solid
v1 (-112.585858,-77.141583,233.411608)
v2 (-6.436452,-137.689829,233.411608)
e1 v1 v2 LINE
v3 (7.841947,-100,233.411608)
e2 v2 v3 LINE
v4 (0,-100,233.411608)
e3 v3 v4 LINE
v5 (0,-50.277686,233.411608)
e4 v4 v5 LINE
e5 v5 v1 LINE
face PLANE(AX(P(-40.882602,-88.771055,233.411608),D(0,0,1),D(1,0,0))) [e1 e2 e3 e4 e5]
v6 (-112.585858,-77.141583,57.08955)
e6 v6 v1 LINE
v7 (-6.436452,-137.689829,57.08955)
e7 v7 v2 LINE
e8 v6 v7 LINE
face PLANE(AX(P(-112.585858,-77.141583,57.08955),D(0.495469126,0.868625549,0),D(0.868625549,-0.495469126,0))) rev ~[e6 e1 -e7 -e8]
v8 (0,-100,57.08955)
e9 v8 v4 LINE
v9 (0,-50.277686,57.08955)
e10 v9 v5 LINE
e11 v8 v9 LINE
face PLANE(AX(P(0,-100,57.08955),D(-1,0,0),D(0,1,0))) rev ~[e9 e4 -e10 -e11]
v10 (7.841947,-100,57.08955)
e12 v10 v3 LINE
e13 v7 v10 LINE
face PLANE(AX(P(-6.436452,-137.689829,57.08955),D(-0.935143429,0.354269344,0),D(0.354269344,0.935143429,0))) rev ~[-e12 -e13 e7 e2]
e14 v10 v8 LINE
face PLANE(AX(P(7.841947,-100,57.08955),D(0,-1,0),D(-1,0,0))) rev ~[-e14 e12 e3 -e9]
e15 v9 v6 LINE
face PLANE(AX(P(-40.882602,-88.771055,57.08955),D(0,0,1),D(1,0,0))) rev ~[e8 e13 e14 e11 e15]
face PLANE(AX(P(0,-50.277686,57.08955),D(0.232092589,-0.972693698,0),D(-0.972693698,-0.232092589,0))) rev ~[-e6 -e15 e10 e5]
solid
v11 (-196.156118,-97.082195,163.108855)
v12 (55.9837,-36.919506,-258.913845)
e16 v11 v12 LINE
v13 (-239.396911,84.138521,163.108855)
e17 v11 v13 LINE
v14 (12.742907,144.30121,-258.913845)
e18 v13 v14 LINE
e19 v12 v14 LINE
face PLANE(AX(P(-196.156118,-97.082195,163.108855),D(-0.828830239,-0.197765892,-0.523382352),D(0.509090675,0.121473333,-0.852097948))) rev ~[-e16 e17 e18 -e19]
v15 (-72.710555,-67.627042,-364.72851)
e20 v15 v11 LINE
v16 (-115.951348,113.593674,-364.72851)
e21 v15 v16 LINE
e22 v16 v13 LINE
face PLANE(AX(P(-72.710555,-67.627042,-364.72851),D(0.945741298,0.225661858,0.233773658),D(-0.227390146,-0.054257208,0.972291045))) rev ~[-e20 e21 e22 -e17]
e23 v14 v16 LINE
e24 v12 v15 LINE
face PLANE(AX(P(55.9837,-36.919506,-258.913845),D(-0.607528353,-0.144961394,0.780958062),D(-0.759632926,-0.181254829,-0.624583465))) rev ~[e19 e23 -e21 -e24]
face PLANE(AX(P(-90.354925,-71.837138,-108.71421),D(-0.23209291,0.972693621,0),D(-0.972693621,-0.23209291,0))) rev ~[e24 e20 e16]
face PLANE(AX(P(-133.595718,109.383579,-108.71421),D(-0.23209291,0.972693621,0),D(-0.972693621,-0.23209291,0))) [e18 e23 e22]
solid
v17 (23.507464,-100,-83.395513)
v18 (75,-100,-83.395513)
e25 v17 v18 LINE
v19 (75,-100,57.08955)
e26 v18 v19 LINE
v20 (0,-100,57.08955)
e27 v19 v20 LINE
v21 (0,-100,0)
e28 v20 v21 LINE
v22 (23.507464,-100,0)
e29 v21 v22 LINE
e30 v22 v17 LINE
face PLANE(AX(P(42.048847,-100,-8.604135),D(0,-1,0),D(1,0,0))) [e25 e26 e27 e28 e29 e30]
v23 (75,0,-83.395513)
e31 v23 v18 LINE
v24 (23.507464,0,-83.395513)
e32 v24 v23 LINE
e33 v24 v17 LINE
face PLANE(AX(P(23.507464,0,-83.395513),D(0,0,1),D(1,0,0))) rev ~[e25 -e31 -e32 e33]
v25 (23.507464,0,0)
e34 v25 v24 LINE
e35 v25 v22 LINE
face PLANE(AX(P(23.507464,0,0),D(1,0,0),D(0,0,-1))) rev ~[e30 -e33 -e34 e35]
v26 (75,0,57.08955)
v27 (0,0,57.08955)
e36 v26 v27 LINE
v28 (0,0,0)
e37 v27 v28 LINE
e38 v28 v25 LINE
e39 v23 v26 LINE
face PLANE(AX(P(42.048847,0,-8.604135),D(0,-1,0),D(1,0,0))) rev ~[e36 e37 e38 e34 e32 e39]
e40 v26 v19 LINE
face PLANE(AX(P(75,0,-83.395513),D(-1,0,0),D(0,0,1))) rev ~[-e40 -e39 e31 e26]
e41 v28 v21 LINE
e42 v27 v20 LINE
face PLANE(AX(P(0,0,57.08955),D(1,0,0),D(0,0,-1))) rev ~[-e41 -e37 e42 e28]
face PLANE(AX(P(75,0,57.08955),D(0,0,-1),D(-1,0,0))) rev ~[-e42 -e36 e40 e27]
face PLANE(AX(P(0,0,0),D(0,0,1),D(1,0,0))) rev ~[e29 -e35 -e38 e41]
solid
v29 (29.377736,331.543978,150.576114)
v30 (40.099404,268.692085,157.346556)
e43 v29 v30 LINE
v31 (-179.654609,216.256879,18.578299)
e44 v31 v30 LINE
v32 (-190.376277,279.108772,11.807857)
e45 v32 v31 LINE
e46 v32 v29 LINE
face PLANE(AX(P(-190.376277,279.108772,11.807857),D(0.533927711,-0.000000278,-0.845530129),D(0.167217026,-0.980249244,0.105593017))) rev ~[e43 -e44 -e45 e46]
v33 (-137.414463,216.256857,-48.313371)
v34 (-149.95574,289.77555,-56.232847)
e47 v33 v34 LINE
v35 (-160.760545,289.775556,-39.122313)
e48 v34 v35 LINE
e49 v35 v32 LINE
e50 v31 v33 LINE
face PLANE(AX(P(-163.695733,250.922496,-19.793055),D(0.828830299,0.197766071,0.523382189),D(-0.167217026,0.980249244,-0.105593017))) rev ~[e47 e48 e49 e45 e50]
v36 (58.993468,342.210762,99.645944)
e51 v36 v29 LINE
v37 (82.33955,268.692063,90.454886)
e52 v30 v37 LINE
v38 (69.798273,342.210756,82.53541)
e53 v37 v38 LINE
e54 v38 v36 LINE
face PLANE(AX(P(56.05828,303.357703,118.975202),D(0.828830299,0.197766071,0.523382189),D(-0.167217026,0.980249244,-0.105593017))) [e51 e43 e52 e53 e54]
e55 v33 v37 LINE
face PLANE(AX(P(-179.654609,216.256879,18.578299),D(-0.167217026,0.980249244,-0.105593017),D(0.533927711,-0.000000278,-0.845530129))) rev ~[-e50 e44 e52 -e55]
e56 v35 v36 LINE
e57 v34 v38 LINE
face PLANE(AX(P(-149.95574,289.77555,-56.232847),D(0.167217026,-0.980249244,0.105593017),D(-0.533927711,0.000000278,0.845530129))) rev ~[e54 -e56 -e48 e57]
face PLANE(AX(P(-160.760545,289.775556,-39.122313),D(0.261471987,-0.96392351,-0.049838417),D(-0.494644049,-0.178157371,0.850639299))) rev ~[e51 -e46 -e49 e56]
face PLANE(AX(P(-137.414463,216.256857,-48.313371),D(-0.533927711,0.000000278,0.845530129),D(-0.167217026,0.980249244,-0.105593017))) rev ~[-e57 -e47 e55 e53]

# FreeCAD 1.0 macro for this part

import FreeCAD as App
import Part
import Sketcher

V = App.Vector

doc = App.newDocument("Part")
body = doc.addObject("PartDesign::Body", "Body")

sketch1 = body.newObject("Sketcher::SketchObject", "Sketch")
sketch1.AttachmentSupport = (doc.getObject("XZ_Plane"), [""])
sketch1.MapMode = "FlatFace"
sketch1.addGeometry([
    Part.LineSegment(V(75, 57, 0), V(0, 57, 0)),
    Part.LineSegment(V(0, 57, 0), V(0, 0, 0)),
    Part.LineSegment(V(0, 0, 0), V(24, 0, 0)),
    Part.LineSegment(V(24, 0, 0), V(24, -83, 0)),
    Part.LineSegment(V(24, -83, 0), V(75, -83, 0)),
    Part.LineSegment(V(75, -83, 0), V(75, 57, 0)),
], False)
sketch1.addConstraint([
    Sketcher.Constraint("Coincident", 0, 2, 1, 1),
    Sketcher.Constraint("Coincident", 1, 2, 2, 1),
    Sketcher.Constraint("Coincident", 2, 2, 3, 1),
    Sketcher.Constraint("Coincident", 3, 2, 4, 1),
    Sketcher.Constraint("Coincident", 4, 2, 5, 1),
    Sketcher.Constraint("Coincident", 5, 2, 0, 1),
    Sketcher.Constraint("Horizontal", 0),
    Sketcher.Constraint("Vertical", 1),
    Sketcher.Constraint("Horizontal", 2),
    Sketcher.Constraint("Vertical", 3),
    Sketcher.Constraint("Horizontal", 4),
    Sketcher.Constraint("Vertical", 5),
    Sketcher.Constraint("Coincident", 1, 2, -1, 1),
    Sketcher.Constraint("DistanceX", 0, 2, 0, 1, 75.0),
    Sketcher.Constraint("DistanceY", 1, 2, 1, 1, 57.08955),
    Sketcher.Constraint("DistanceX", 2, 1, 2, 2, 23.507464),
    Sketcher.Constraint("DistanceY", 3, 2, 3, 1, 83.395513),
])
pad1 = body.newObject("PartDesign::Pad", "Pad")
pad1.Profile = sketch1
pad1.Length = 100
body2 = doc.addObject("PartDesign::Body", "Body001")

sketch2 = body2.newObject("Sketcher::SketchObject", "Sketch001")
sketch2.AttachmentSupport = (doc.getObject("XY_Plane001"), [""])
sketch2.MapMode = "FlatFace"
sketch2.AttachmentOffset = App.Placement(V(0, 0, 57.08955), App.Rotation())
sketch2.addGeometry([
    Part.LineSegment(V(-113, -77, 0), V(-6, -138, 0)),
    Part.LineSegment(V(-6, -138, 0), V(8, -100, 0)),
    Part.LineSegment(V(8, -100, 0), V(0, -100, 0)),
    Part.LineSegment(V(0, -100, 0), V(0, -50, 0)),
    Part.LineSegment(V(0, -50, 0), V(-113, -77, 0)),
], False)
sketch2.addConstraint([
    Sketcher.Constraint("Coincident", 0, 2, 1, 1),
    Sketcher.Constraint("Coincident", 1, 2, 2, 1),
    Sketcher.Constraint("Coincident", 2, 2, 3, 1),
    Sketcher.Constraint("Coincident", 3, 2, 4, 1),
    Sketcher.Constraint("Coincident", 4, 2, 0, 1),
    Sketcher.Constraint("Horizontal", 2),
    Sketcher.Constraint("Vertical", 3),
    Sketcher.Constraint("PointOnObject", 2, 2, -2),
    Sketcher.Constraint("DistanceY", 1, 2, -1, 1, 100.0),
    Sketcher.Constraint("DistanceX", 0, 2, 1, 2, 14.278399),
    Sketcher.Constraint("DistanceX", 2, 2, 2, 1, 7.841947),
    Sketcher.Constraint("DistanceY", 3, 1, 3, 2, 49.722314),
    Sketcher.Constraint("DistanceY", 0, 2, -1, 1, 137.689829),
    Sketcher.Constraint("DistanceX", 4, 2, -1, 1, 112.585858),
    Sketcher.Constraint("Distance", 0, 122.203873),
])
pad2 = body2.newObject("PartDesign::Pad", "Pad001")
pad2.Profile = sketch2
pad2.Length = 176.322058
body3 = doc.addObject("PartDesign::Body", "Body002")

sketch3 = body3.newObject("Sketcher::SketchObject", "Sketch002")
sketch3.Placement = App.Placement(V(11.350439, -47.569379, 0), App.Rotation(V(-0.972693621, -0.23209291, 0), V(0, 0, 0.999999999), V(-0.23209291, 0.972693621, 0), "ZXY"))
sketch3.addGeometry([
    Part.LineSegment(V(86, -365, 0), V(213, 163, 0)),
    Part.LineSegment(V(213, 163, 0), V(-46, -259, 0)),
    Part.LineSegment(V(-46, -259, 0), V(86, -365, 0)),
], False)
sketch3.addConstraint([
    Sketcher.Constraint("Coincident", 0, 2, 1, 1),
    Sketcher.Constraint("Coincident", 1, 2, 2, 1),
    Sketcher.Constraint("Coincident", 2, 2, 0, 1),
    Sketcher.Constraint("Distance", 0, 542.880002),
    Sketcher.Constraint("DistanceY", 1, 2, 0, 2, 422.022699),
    Sketcher.Constraint("Distance", 1, 495.274869),
    Sketcher.Constraint("DistanceY", 2, 2, -1, 1, 364.728509),
    Sketcher.Constraint("DistanceX", 1, 2, 2, 2, 132.307082),
    Sketcher.Constraint("DistanceX", -1, 1, 0, 2, 213.331878),
])
pad3 = body3.newObject("PartDesign::Pad", "Pad002")
pad3.Profile = sketch3
pad3.Length = 186.308116
body4 = doc.addObject("PartDesign::Body", "Body003")

sketch4 = body4.newObject("Sketcher::SketchObject", "Sketch003")
sketch4.Placement = App.Placement(V(-79.908656, -19.066853, -50.460004), App.Rotation(V(-0.167217026, 0.980249244, -0.105593017), V(-0.533927711, 0.000000279, 0.845530128), V(0.828830299, 0.197766071, 0.523382189), "ZXY"))
sketch4.addGeometry([
    Part.LineSegment(V(304, 112, 0), V(240, 112, 0)),
    Part.LineSegment(V(240, 112, 0), V(240, 33, 0)),
    Part.LineSegment(V(240, 33, 0), V(315, 33, 0)),
    Part.LineSegment(V(315, 33, 0), V(315, 53, 0)),
    Part.LineSegment(V(315, 53, 0), V(304, 112, 0)),
], False)
sketch4.addConstraint([
    Sketcher.Constraint("Coincident", 0, 2, 1, 1),
    Sketcher.Constraint("Coincident", 1, 2, 2, 1),
    Sketcher.Constraint("Coincident", 2, 2, 3, 1),
    Sketcher.Constraint("Coincident", 3, 2, 4, 1),
    Sketcher.Constraint("Coincident", 4, 2, 0, 1),
    Sketcher.Constraint("Horizontal", 0),
    Sketcher.Constraint("Vertical", 1),
    Sketcher.Constraint("Horizontal", 2),
    Sketcher.Constraint("Vertical", 3),
    Sketcher.Constraint("DistanceX", 2, 1, 2, 2, 75.0),
    Sketcher.Constraint("DistanceX", 0, 2, 0, 1, 64.118278),
    Sketcher.Constraint("DistanceY", 1, 2, 1, 1, 79.112107),
    Sketcher.Constraint("DistanceY", 3, 1, 3, 2, 20.236457),
    Sketcher.Constraint("DistanceX", -1, 1, 0, 2, 240.065169),
    Sketcher.Constraint("DistanceY", -1, 1, 0, 2, 111.631159),
])
pad4 = body4.newObject("PartDesign::Pad", "Pad003")
pad4.Profile = sketch4
pad4.Length = 265.137523

doc.recompute()
